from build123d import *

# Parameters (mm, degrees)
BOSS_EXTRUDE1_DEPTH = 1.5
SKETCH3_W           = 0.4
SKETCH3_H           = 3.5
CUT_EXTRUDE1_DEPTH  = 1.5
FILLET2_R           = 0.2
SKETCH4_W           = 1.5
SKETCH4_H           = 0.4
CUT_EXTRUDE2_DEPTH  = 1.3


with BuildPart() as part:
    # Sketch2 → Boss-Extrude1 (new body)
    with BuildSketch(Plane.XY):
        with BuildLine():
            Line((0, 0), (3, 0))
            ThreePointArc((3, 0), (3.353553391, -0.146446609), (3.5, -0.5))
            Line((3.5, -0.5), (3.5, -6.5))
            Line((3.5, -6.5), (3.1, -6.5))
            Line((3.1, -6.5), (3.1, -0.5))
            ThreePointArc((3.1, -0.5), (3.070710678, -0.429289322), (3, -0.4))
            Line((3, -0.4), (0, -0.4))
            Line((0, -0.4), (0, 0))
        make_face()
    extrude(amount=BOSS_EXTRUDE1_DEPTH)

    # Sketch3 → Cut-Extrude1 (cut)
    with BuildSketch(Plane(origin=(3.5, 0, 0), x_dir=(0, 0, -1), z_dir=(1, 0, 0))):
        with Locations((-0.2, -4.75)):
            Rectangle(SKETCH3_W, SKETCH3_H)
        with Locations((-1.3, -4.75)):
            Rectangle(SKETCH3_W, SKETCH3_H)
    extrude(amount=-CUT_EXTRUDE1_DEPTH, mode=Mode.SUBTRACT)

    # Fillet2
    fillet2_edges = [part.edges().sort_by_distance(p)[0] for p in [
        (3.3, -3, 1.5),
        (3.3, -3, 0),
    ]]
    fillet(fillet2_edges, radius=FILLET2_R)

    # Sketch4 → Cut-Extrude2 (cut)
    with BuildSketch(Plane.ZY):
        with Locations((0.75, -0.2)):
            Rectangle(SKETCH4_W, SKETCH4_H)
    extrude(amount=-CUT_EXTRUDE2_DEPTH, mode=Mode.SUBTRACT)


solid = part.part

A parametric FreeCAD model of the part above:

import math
import FreeCAD as App
import Part
import Sketcher

V = App.Vector
Q = App.Units.Quantity


def edges_at(feature, points):
    """Names of the edges that pass closest to the given points."""
    edges = feature.Shape.Edges
    near = lambda p: min(range(len(edges)), key=lambda i: edges[i].distToShape(Part.Vertex(*p))[0])
    return sorted({f"Edge{near(p) + 1}" for p in points})


def add_polygon(sketch, points):
    """Adds a closed chain of lines whose ends are joined by coincident constraints."""
    first, n = sketch.GeometryCount, len(points)
    for a, b in zip(points, points[1:] + points[:1]):
        sketch.addGeometry(Part.LineSegment(App.Vector(*a, 0), App.Vector(*b, 0)), False)
    for i in range(n):
        sketch.addConstraint(Sketcher.Constraint("Coincident", first + i, 2, first + (i + 1) % n, 1))

doc = App.newDocument("Part")
body = doc.addObject("PartDesign::Body", "Body")

# Sketch on XY plane
sketch1 = body.newObject("Sketcher::SketchObject", "Sketch")
sketch1.AttachmentSupport = (doc.getObject("XY_Plane"), [""])
sketch1.MapMode = "FlatFace"
sketch1.addGeometry([
    Part.LineSegment(V(3, 0, 0), V(0, 0, 0)),  # 0
    Part.LineSegment(V(0, 0, 0), V(0, -0.4, 0)),  # 1
    Part.LineSegment(V(0, -0.4, 0), V(3, -0.4, 0)),  # 2
    Part.ArcOfCircle(Part.Circle(V(3, -0.5, 0), V(0, 0, 1), 0.1), math.radians(0), math.radians(90)),  # 3
    Part.LineSegment(V(3.1, -0.5, 0), V(3.1, -6.5, 0)),  # 4
    Part.LineSegment(V(3.1, -6.5, 0), V(3.5, -6.5, 0)),  # 5
    Part.LineSegment(V(3.5, -6.5, 0), V(3.5, -0.5, 0)),  # 6
    Part.ArcOfCircle(Part.Circle(V(3, -0.5, 0), V(0, 0, 1), 0.5), math.radians(0), math.radians(90)),  # 7
], False)
sketch1.addConstraint([
    Sketcher.Constraint("Coincident", 0, 2, 1, 1),
    Sketcher.Constraint("Coincident", 1, 2, 2, 1),
    Sketcher.Constraint("Tangent", 2, 2, 3, 2),
    Sketcher.Constraint("Tangent", 3, 1, 4, 1),
    Sketcher.Constraint("Coincident", 4, 2, 5, 1),
    Sketcher.Constraint("Coincident", 5, 2, 6, 1),
    Sketcher.Constraint("Tangent", 6, 2, 7, 1),
    Sketcher.Constraint("Tangent", 7, 2, 0, 1),
    Sketcher.Constraint("Horizontal", 0),
    Sketcher.Constraint("Vertical", 1),
    Sketcher.Constraint("Horizontal", 2),
    Sketcher.Constraint("Vertical", 4),
    Sketcher.Constraint("Horizontal", 5),
    Sketcher.Constraint("Vertical", 6),
    Sketcher.Constraint("Coincident", 0, 2, -1, 1),
    Sketcher.Constraint("Coincident", 7, 3, 3, 3),
    Sketcher.Constraint("Radius", 3, Q("0.1 mm")),
    Sketcher.Constraint("Radius", 7, Q("0.5 mm")),
    Sketcher.Constraint("DistanceX", 0, 2, 0, 1, Q("3 mm")),
    Sketcher.Constraint("DistanceY", 4, 2, 4, 1, Q("6 mm")),
])
pad1 = body.newObject("PartDesign::Pad", "Pad")
pad1.Profile = sketch1
pad1.Length = 1.5

# Sketch on YZ plane
sketch2 = body.newObject("Sketcher::SketchObject", "Sketch001")
sketch2.AttachmentSupport = (doc.getObject("YZ_Plane"), [""])
sketch2.MapMode = "FlatFace"
sketch2.AttachmentOffset = App.Placement(V(0, 0, 3.5), App.Rotation())
add_polygon(sketch2, [(-3, 0.4), (-6.5, 0.4), (-6.5, 0), (-3, 0)])  # lines 0-3
add_polygon(sketch2, [(-3, 1.5), (-6.5, 1.5), (-6.5, 1.1), (-3, 1.1)])  # lines 4-7
sketch2.addConstraint([
    Sketcher.Constraint("Horizontal", 0),
    Sketcher.Constraint("Vertical", 1),
    Sketcher.Constraint("Horizontal", 2),
    Sketcher.Constraint("Vertical", 3),
    Sketcher.Constraint("Horizontal", 4),
    Sketcher.Constraint("Vertical", 5),
    Sketcher.Constraint("Horizontal", 6),
    Sketcher.Constraint("Vertical", 7),
    Sketcher.Constraint("PointOnObject", 1, 2, -1),
    Sketcher.Constraint("Vertical", 1, 2, 4, 2),
    Sketcher.Constraint("Vertical", 3, 2, 6, 2),
    Sketcher.Constraint("Equal", 3, 5),
    Sketcher.Constraint("DistanceX", 0, 2, 0, 1, Q("3.5 mm")),
    Sketcher.Constraint("DistanceY", 1, 2, 1, 1, Q("0.4 mm")),
    Sketcher.Constraint("DistanceX", 2, 2, -1, 1, Q("3 mm")),
    Sketcher.Constraint("DistanceY", -1, 1, 4, 2, Q("1.5 mm")),
])
pocket1 = body.newObject("PartDesign::Pocket", "Pocket")
pocket1.Profile = sketch2
pocket1.Length = 1.5
doc.recompute()

fillet = body.newObject("PartDesign::Fillet", "Fillet")
fillet.Base = (pocket1, edges_at(pocket1, [(3.3, -3, 1.5), (3.3, -3, 0)]))
fillet.Radius = 0.2

# Sketch on YZ plane
sketch3 = body.newObject("Sketcher::SketchObject", "Sketch002")
sketch3.AttachmentSupport = (doc.getObject("YZ_Plane"), [""])
sketch3.MapMode = "FlatFace"
add_polygon(sketch3, [(0, 0), (-0.4, 0), (-0.4, 1.5), (0, 1.5)])  # lines 0-3
sketch3.addConstraint([
    Sketcher.Constraint("Horizontal", 0),
    Sketcher.Constraint("Vertical", 1),
    Sketcher.Constraint("Horizontal", 2),
    Sketcher.Constraint("Vertical", 3),
    Sketcher.Constraint("Coincident", 3, 2, -1, 1),
    Sketcher.Constraint("DistanceX", 0, 2, 0, 1, Q("0.4 mm")),
    Sketcher.Constraint("DistanceY", 1, 1, 1, 2, Q("1.5 mm")),
])
pocket2 = body.newObject("PartDesign::Pocket", "Pocket001")
pocket2.Profile = sketch3
pocket2.Length = 1.3
pocket2.Reversed = True

doc.recompute()
